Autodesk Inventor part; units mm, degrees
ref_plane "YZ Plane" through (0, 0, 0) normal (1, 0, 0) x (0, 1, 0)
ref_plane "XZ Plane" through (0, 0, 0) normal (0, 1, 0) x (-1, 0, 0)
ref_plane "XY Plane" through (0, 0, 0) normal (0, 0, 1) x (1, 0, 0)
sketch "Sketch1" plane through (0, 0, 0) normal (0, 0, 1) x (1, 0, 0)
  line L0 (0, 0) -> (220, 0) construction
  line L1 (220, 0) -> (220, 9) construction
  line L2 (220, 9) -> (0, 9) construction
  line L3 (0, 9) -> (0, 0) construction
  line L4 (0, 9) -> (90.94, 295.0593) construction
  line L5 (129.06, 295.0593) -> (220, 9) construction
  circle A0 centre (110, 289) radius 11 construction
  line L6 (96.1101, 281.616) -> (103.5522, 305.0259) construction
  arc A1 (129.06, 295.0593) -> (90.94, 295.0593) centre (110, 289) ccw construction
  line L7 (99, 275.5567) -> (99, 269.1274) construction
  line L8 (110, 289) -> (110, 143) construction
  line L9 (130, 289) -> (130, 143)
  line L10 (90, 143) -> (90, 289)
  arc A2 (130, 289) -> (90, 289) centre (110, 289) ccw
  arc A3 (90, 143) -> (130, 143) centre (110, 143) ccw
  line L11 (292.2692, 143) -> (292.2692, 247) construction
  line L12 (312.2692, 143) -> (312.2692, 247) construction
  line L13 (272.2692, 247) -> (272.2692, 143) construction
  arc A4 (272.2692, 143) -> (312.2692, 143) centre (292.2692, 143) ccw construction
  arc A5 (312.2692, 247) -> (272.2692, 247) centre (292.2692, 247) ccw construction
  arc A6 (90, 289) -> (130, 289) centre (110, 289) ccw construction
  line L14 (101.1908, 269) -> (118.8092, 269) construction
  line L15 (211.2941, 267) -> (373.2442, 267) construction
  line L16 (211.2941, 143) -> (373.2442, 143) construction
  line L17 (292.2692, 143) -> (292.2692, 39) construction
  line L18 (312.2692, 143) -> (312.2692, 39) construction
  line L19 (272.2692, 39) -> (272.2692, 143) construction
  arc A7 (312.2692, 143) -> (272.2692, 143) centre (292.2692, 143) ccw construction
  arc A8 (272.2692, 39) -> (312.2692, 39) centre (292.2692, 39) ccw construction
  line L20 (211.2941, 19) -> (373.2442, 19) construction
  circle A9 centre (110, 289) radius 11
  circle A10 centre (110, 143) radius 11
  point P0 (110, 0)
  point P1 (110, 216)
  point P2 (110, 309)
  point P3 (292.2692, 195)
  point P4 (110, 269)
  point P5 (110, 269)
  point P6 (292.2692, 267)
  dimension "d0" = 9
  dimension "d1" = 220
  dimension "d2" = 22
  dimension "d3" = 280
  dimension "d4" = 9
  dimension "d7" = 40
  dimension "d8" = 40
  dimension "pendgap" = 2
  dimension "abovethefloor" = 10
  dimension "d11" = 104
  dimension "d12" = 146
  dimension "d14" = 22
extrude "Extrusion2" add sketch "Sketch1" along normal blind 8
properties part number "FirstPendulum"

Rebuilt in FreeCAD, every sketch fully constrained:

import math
import FreeCAD as App
import Part
import Sketcher
from FreeCAD import Vector

doc = App.newDocument("Part")
body = doc.addObject("PartDesign::Body", "Body")

# Sketch on XY plane
sketch1 = body.newObject("Sketcher::SketchObject", "Sketch")
sketch1.AttachmentSupport = (doc.getObject("XY_Plane"), [""])
sketch1.MapMode = "FlatFace"
sketch1.addGeometry(Part.LineSegment(Vector(130, 143, 0), Vector(130, 289, 0)), False)
sketch1.addGeometry(Part.ArcOfCircle(Part.Circle(Vector(110, 289, 0), Vector(0, 0, 1), 20), math.radians(0), math.radians(180)), False)
sketch1.addGeometry(Part.LineSegment(Vector(90, 289, 0), Vector(90, 143, 0)), False)
sketch1.addGeometry(Part.ArcOfCircle(Part.Circle(Vector(110, 143, 0), Vector(0, 0, 1), 20), math.radians(180), math.radians(360)), False)
sketch1.addGeometry(Part.Circle(Vector(110, 143, 0), Vector(0, 0, 1), 11), False)
sketch1.addGeometry(Part.Circle(Vector(110, 289, 0), Vector(0, 0, 1), 11), False)
sketch1.addConstraint(Sketcher.Constraint("Tangent", 0, 2, 1, 1))
sketch1.addConstraint(Sketcher.Constraint("Tangent", 1, 2, 2, 1))
sketch1.addConstraint(Sketcher.Constraint("Tangent", 2, 2, 3, 1))
sketch1.addConstraint(Sketcher.Constraint("Tangent", 3, 2, 0, 1))
sketch1.addConstraint(Sketcher.Constraint("Vertical", 0))
sketch1.addConstraint(Sketcher.Constraint("Vertical", 2))
sketch1.addConstraint(Sketcher.Constraint("Coincident", 4, 3, 3, 3))
sketch1.addConstraint(Sketcher.Constraint("Coincident", 5, 3, 1, 3))
sketch1.addConstraint(Sketcher.Constraint("Equal", 4, 5))
sketch1.addConstraint(Sketcher.Constraint("Diameter", 4, 22.0))
sketch1.addConstraint(Sketcher.Constraint("Radius", 1, 20.0))
sketch1.addConstraint(Sketcher.Constraint("DistanceY", 0, 1, 0, 2, 146.0))
sketch1.addConstraint(Sketcher.Constraint("DistanceX", -1, 1, 1, 3, 110.0))
sketch1.addConstraint(Sketcher.Constraint("DistanceY", -1, 1, 1, 3, 289.0))
pad1 = body.newObject("PartDesign::Pad", "Pad")
pad1.Profile = sketch1
pad1.Length = 8

doc.recompute()
